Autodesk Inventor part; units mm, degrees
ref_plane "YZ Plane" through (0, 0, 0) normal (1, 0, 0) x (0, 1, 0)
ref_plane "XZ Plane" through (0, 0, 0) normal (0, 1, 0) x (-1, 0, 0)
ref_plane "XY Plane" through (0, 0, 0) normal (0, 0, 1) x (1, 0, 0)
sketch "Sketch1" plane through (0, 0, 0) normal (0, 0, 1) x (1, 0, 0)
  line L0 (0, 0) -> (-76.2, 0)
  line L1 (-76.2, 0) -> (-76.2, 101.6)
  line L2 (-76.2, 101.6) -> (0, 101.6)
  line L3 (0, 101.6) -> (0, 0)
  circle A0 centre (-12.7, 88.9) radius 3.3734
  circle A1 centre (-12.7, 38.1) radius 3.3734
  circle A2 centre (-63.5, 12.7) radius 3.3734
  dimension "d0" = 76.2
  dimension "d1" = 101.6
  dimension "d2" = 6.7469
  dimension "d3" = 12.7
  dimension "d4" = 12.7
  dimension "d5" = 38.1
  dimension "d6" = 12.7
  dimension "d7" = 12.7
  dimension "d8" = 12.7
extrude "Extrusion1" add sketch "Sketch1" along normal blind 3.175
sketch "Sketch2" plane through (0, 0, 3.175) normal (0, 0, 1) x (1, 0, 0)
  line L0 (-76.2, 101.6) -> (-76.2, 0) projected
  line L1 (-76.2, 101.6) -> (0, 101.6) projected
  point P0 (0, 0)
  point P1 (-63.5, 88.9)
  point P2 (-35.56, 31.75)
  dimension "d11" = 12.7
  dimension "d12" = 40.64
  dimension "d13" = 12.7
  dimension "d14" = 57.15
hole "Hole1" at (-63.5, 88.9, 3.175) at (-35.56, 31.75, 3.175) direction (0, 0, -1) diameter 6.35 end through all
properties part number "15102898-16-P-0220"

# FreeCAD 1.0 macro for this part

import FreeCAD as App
import Part
import Sketcher
from FreeCAD import Vector
Q = App.Units.Quantity

doc = App.newDocument("Part")
params = doc.addObject("Spreadsheet::Sheet", "Params")
for row, (alias, value) in enumerate([
    ("sketch1_width", "3 in"),
    ("sketch1_height", "4 in"),
    ("sketch1_diameter", "0.265622 in"),
    ("pad1_length", "0.125 in"),
    ("sketch2_diameter", "0.25 in"),
    ("hole_diameter", "0.25 in"),
], start=1):
    params.set(f"A{row}", alias)
    params.set(f"B{row}", "=" + value)
    params.setAlias(f"B{row}", alias)

body = doc.addObject("PartDesign::Body", "Body")

# Sketch on XY plane
sketch1 = body.newObject("Sketcher::SketchObject", "Sketch")
sketch1.AttachmentSupport = (doc.getObject("XY_Plane"), [""])
sketch1.MapMode = "FlatFace"
sketch1.addGeometry(Part.LineSegment(Vector(-76.2, 0, 0), Vector(0, 0, 0)), False)
sketch1.addGeometry(Part.LineSegment(Vector(0, 0, 0), Vector(0, 101.6, 0)), False)
sketch1.addGeometry(Part.LineSegment(Vector(0, 101.6, 0), Vector(-76.2, 101.6, 0)), False)
sketch1.addGeometry(Part.LineSegment(Vector(-76.2, 101.6, 0), Vector(-76.2, 0, 0)), False)
sketch1.addGeometry(Part.Circle(Vector(-63.5, 12.7, 0), Vector(0, 0, 1), 3.4), False)
sketch1.addGeometry(Part.Circle(Vector(-12.7, 38.1, 0), Vector(0, 0, 1), 3.4), False)
sketch1.addGeometry(Part.Circle(Vector(-12.7, 88.9, 0), Vector(0, 0, 1), 3.4), False)
sketch1.addConstraint(Sketcher.Constraint("Coincident", 0, 2, 1, 1))
sketch1.addConstraint(Sketcher.Constraint("Coincident", 1, 2, 2, 1))
sketch1.addConstraint(Sketcher.Constraint("Coincident", 2, 2, 3, 1))
sketch1.addConstraint(Sketcher.Constraint("Coincident", 3, 2, 0, 1))
sketch1.addConstraint(Sketcher.Constraint("Horizontal", 0))
sketch1.addConstraint(Sketcher.Constraint("Vertical", 1))
sketch1.addConstraint(Sketcher.Constraint("Horizontal", 2))
sketch1.addConstraint(Sketcher.Constraint("Vertical", 3))
sketch1.addConstraint(Sketcher.Constraint("Coincident", 0, 2, -1, 1))
sketch1.addConstraint(Sketcher.Constraint("Equal", 4, 5))
sketch1.addConstraint(Sketcher.Constraint("Equal", 5, 6))
sketch1.addConstraint(Sketcher.Constraint("Vertical", 5, 3, 6, 3))
sketch1.addConstraint(Sketcher.Constraint("DistanceX", 0, 1, 0, 2, Q("3 in")))
sketch1.addConstraint(Sketcher.Constraint("DistanceY", 1, 1, 1, 2, Q("4 in")))
sketch1.addConstraint(Sketcher.Constraint("Diameter", 4, Q("0.265622 in")))
sketch1.addConstraint(Sketcher.Constraint("DistanceY", 4, 3, 6, 3, Q("3 in")))
sketch1.addConstraint(Sketcher.Constraint("DistanceY", -1, 1, 4, 3, Q("0.5 in")))
sketch1.addConstraint(Sketcher.Constraint("DistanceX", 5, 3, -1, 1, Q("0.5 in")))
sketch1.addConstraint(Sketcher.Constraint("DistanceY", -1, 1, 5, 3, Q("1.5 in")))
sketch1.addConstraint(Sketcher.Constraint("DistanceX", 2, 2, 4, 3, Q("0.5 in")))
sketch1.setExpression("Constraints[12]", "Params.sketch1_width")
sketch1.setExpression("Constraints[13]", "Params.sketch1_height")
sketch1.setExpression("Constraints[14]", "Params.sketch1_diameter")
pad1 = body.newObject("PartDesign::Pad", "Pad")
pad1.Profile = sketch1
pad1.setExpression("Length", "Params.pad1_length")

# Sketch on XY plane
sketch2 = body.newObject("Sketcher::SketchObject", "Sketch001")
sketch2.AttachmentSupport = (doc.getObject("XY_Plane"), [""])
sketch2.MapMode = "FlatFace"
sketch2.AttachmentOffset = App.Placement(Vector(0, 0, 0.125 * 25.4), App.Rotation())
sketch2.addGeometry(Part.Circle(Vector(-63.5, 88.9, 0), Vector(0, 0, 1), 3.2), False)
sketch2.addGeometry(Part.Circle(Vector(-35.6, 31.8, 0), Vector(0, 0, 1), 3.2), False)
sketch2.addConstraint(Sketcher.Constraint("Equal", 0, 1))
sketch2.addConstraint(Sketcher.Constraint("Diameter", 0, Q("0.25 in")))
sketch2.addConstraint(Sketcher.Constraint("DistanceX", 0, 3, -1, 1, Q("2.5 in")))
sketch2.addConstraint(Sketcher.Constraint("DistanceY", -1, 1, 0, 3, Q("3.5 in")))
sketch2.addConstraint(Sketcher.Constraint("DistanceX", 1, 3, -1, 1, Q("1.4 in")))
sketch2.addConstraint(Sketcher.Constraint("DistanceY", -1, 1, 1, 3, Q("1.25 in")))
sketch2.setExpression("Constraints[1]", "Params.sketch2_diameter")
doc.recompute()
hole = body.newObject("PartDesign::Hole", "Hole")
hole.Profile = sketch2
hole.ThreadType = "None"
hole.setExpression("Diameter", "Params.hole_diameter")
hole.DepthType = "ThroughAll"

doc.recompute()
